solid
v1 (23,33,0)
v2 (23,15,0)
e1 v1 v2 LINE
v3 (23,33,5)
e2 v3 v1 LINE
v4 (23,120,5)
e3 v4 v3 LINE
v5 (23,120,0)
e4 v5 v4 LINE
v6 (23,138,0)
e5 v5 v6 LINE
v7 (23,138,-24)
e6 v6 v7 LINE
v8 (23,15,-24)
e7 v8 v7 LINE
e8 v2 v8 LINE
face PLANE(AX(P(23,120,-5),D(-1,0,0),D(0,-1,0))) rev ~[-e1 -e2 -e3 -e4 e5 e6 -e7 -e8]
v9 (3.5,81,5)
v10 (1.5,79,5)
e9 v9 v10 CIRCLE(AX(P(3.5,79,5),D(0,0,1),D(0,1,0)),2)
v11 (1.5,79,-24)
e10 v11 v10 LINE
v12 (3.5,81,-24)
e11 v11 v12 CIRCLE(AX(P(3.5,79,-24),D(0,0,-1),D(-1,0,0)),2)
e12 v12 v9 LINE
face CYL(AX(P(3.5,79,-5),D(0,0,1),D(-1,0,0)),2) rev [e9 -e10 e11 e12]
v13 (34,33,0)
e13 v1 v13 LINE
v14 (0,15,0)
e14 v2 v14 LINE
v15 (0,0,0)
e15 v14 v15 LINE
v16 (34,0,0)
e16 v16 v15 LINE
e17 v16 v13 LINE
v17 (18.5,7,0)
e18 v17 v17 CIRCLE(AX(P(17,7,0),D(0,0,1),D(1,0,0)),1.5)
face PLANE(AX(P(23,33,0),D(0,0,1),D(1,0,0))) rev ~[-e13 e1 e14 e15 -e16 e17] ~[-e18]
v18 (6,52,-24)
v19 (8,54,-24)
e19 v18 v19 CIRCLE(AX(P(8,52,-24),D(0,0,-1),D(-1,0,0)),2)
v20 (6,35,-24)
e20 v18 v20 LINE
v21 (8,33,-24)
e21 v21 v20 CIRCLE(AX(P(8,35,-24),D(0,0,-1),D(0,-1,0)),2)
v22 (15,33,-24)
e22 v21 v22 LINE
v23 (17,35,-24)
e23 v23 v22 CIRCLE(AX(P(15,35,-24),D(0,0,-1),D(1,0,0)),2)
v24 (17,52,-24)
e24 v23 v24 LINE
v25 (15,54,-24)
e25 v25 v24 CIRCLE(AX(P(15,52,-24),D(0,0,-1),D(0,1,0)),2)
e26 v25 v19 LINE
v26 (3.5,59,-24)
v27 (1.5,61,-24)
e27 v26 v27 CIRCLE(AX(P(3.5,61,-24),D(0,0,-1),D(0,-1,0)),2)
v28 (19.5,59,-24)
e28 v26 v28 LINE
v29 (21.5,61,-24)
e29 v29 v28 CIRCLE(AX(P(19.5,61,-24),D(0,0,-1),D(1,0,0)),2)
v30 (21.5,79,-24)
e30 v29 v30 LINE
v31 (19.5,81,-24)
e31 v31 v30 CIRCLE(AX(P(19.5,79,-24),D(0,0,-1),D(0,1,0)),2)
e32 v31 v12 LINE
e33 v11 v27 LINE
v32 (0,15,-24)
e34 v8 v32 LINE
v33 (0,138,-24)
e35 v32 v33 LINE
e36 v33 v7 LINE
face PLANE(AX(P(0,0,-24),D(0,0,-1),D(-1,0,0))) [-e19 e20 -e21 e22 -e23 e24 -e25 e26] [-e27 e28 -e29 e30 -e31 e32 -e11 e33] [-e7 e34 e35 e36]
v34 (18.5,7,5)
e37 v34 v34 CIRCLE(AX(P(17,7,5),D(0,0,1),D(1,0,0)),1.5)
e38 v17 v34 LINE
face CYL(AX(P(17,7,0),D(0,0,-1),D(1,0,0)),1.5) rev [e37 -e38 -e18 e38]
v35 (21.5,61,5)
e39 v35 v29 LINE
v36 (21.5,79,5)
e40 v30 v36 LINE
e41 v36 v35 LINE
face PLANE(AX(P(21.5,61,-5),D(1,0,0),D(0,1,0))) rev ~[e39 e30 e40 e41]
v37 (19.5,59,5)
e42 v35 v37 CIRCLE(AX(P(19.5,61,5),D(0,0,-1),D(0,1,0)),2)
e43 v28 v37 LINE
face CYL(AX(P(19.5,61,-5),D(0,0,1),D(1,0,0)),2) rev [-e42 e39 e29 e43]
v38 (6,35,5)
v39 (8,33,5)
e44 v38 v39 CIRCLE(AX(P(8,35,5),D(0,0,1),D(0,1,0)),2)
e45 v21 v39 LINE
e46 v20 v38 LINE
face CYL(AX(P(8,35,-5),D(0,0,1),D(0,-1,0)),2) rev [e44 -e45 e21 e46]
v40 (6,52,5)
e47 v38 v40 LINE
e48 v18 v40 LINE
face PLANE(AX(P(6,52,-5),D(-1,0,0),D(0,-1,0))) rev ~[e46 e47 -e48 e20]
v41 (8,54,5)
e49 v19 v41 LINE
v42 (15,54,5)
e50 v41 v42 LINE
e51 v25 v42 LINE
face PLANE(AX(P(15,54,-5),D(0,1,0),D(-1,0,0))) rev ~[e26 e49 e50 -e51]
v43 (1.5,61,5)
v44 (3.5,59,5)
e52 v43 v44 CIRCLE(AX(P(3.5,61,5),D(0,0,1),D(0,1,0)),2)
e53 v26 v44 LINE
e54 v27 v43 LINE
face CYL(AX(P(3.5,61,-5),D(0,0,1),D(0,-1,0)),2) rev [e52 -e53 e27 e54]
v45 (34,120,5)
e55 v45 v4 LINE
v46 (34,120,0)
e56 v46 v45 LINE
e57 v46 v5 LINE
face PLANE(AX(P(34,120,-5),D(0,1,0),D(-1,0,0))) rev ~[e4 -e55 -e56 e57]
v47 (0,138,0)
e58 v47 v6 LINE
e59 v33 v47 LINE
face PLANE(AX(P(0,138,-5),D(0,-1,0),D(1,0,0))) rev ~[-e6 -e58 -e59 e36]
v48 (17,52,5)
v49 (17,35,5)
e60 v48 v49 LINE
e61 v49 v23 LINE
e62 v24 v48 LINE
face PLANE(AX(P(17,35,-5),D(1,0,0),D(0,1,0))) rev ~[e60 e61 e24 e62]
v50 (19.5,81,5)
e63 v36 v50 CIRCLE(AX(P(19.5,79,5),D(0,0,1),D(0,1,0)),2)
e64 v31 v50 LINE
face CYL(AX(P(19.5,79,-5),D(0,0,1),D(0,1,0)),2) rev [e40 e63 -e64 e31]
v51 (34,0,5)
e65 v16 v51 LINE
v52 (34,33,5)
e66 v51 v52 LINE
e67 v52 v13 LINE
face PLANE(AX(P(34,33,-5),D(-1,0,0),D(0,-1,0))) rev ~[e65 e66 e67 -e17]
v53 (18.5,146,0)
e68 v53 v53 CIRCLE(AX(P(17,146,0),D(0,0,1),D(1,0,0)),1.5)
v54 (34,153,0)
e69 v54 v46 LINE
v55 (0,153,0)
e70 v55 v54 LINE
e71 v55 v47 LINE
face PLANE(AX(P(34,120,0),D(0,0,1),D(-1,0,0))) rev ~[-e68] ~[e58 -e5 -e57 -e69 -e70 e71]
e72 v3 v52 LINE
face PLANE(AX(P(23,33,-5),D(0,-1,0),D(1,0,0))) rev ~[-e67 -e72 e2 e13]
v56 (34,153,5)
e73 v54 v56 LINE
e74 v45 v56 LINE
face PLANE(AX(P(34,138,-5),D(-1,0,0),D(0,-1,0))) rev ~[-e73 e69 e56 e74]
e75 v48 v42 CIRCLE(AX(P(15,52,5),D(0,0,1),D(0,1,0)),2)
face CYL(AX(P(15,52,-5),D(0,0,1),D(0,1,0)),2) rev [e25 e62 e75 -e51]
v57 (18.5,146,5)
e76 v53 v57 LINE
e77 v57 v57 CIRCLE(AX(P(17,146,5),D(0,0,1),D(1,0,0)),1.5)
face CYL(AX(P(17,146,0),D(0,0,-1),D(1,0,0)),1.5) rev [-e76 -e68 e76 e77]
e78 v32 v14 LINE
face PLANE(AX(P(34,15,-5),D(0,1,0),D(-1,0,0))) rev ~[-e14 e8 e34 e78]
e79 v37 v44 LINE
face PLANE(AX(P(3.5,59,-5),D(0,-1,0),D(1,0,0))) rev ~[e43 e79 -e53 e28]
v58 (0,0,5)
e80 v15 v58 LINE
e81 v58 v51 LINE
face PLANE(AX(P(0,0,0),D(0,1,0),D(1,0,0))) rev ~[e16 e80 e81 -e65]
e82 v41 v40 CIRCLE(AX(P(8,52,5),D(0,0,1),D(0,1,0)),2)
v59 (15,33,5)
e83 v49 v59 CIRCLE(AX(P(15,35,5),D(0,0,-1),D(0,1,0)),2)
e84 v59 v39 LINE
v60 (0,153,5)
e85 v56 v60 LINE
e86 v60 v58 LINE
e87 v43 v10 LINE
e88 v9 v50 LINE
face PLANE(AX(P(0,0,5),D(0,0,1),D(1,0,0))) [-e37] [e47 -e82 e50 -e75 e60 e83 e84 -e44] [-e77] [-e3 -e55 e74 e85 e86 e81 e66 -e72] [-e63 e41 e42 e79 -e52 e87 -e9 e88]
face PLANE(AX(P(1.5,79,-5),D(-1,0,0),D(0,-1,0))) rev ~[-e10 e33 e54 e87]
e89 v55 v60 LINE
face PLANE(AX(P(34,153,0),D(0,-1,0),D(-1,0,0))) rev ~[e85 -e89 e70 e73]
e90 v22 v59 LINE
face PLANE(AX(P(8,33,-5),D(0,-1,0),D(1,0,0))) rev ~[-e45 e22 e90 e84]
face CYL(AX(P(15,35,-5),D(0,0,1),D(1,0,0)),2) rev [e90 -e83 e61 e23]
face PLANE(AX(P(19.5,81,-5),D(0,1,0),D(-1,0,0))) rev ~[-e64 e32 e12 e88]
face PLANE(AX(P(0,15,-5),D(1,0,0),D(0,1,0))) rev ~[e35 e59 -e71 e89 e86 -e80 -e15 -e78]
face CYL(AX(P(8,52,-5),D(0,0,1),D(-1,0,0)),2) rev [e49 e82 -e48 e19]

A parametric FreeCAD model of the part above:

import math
import FreeCAD as App
import Part
import Sketcher
Q = App.Units.Quantity


def edges_at(feature, points):
    """Names of the edges that pass closest to the given points."""
    edges = feature.Shape.Edges
    near = lambda p: min(range(len(edges)), key=lambda i: edges[i].distToShape(Part.Vertex(*p))[0])
    return sorted({f"Edge{near(p) + 1}" for p in points})


def add_polygon(sketch, points):
    """Adds a closed chain of lines whose ends are joined by coincident constraints."""
    first, n = sketch.GeometryCount, len(points)
    for a, b in zip(points, points[1:] + points[:1]):
        sketch.addGeometry(Part.LineSegment(App.Vector(*a, 0), App.Vector(*b, 0)), False)
    for i in range(n):
        sketch.addConstraint(Sketcher.Constraint("Coincident", first + i, 2, first + (i + 1) % n, 1))

doc = App.newDocument("Part")
params = doc.addObject("Spreadsheet::Sheet", "Params")
for row, (alias, value) in enumerate([
    ("sketch1_diameter", "3 mm"),
    ("sketch1_width", "34 mm"),
    ("sketch1_height", "153 mm"),
    ("pad1_length", "5 mm"),
    ("sketch2_height", "123 mm"),
    ("sketch2_width", "34 mm"),
    ("pad2_length", "5 mm"),
    ("sketch3_width", "11 mm"),
    ("sketch3_height", "87 mm"),
    ("sketch4_width", "11 mm"),
    ("sketch4_height", "21 mm"),
    ("fillet_radius", "2 mm"),
    ("sketch5_width", "20 mm"),
    ("sketch5_height", "22 mm"),
    ("fillet2_radius", "2 mm"),
    ("sketch6_radius", "2 mm"),
    ("sketch6_width", "11 mm"),
    ("sketch6_width2", "34 mm"),
    ("sketch6_width3", "7 mm"),
    ("sketch6_width4", "16 mm"),
    ("pad3_length", "19 mm"),
    ("sketch7_width", "11 mm"),
    ("sketch7_height", "24 mm"),
    ("sketch8_width", "11 mm"),
    ("sketch8_height", "24 mm"),
], start=1):
    params.set(f"A{row}", alias)
    params.set(f"B{row}", "=" + value)
    params.setAlias(f"B{row}", alias)

body = doc.addObject("PartDesign::Body", "Body")

# Sketch on XY plane
sketch1 = doc.addObject("Sketcher::SketchObject", "Sketch")
body.addObject(sketch1)
sketch1.AttachmentSupport = (doc.XY_Plane, [""])
sketch1.MapMode = "FlatFace"
add_polygon(sketch1, [(0, 153), (0, 0), (34, 0), (34, 153)])  # lines 0-3
sketch1.addGeometry(Part.Circle(App.Vector(17, 7, 0), App.Vector(0, 0, 1), 1.5), False)  # 4
sketch1.addGeometry(Part.Circle(App.Vector(17, 146, 0), App.Vector(0, 0, 1), 1.5), False)  # 5
sketch1.addConstraint([
    Sketcher.Constraint("Vertical", 0),
    Sketcher.Constraint("Horizontal", 1),
    Sketcher.Constraint("Vertical", 2),
    Sketcher.Constraint("Horizontal", 3),
    Sketcher.Constraint("Coincident", 0, 2, -1, 1),
    Sketcher.Constraint("Equal", 4, 5),
    Sketcher.Constraint("Vertical", 4, 3, 5, 3),
    Sketcher.Constraint("Diameter", 4, Q("3 mm")),
    Sketcher.Constraint("DistanceX", 1, 1, 1, 2, Q("34 mm")),
    Sketcher.Constraint("DistanceY", 0, 2, 0, 1, Q("153 mm")),
    Sketcher.Constraint("DistanceY", -1, 1, 4, 3, Q("7 mm")),
    Sketcher.Constraint("DistanceY", 5, 3, 2, 2, Q("7 mm")),
    Sketcher.Constraint("DistanceX", -1, 1, 4, 3, Q("17 mm")),
])
sketch1.setExpression("Constraints[11]", "Params.sketch1_diameter")
sketch1.setExpression("Constraints[12]", "Params.sketch1_width")
sketch1.setExpression("Constraints[13]", "Params.sketch1_height")
pad1 = doc.addObject("PartDesign::Pad", "Pad")
body.addObject(pad1)
pad1.Profile = sketch1
pad1.setExpression("Length", "Params.pad1_length")

# Sketch on XY plane
sketch2 = doc.addObject("Sketcher::SketchObject", "Sketch001")
body.addObject(sketch2)
sketch2.AttachmentSupport = (doc.XY_Plane, [""])
sketch2.MapMode = "FlatFace"
add_polygon(sketch2, [(0, 15), (0, 138), (34, 138), (34, 15)])  # lines 0-3
sketch2.addConstraint([
    Sketcher.Constraint("Vertical", 0),
    Sketcher.Constraint("Horizontal", 1),
    Sketcher.Constraint("Vertical", 2),
    Sketcher.Constraint("Horizontal", 3),
    Sketcher.Constraint("PointOnObject", 0, 2, -2),
    Sketcher.Constraint("DistanceY", 0, 1, 0, 2, Q("123 mm")),
    Sketcher.Constraint("DistanceX", 1, 1, 1, 2, Q("34 mm")),
    Sketcher.Constraint("DistanceY", -1, 1, 0, 2, Q("138 mm")),
])
sketch2.setExpression("Constraints[9]", "Params.sketch2_height")
sketch2.setExpression("Constraints[10]", "Params.sketch2_width")
pad2 = doc.addObject("PartDesign::Pad", "Pad001")
body.addObject(pad2)
pad2.Profile = sketch2
pad2.setExpression("Length", "Params.pad2_length")
pad2.Reversed = True

# Sketch on XY plane
sketch3 = doc.addObject("Sketcher::SketchObject", "Sketch002")
body.addObject(sketch3)
sketch3.AttachmentSupport = (doc.XY_Plane, [""])
sketch3.MapMode = "FlatFace"
sketch3.AttachmentOffset = App.Placement(App.Vector(0, 0, 5), App.Rotation())
add_polygon(sketch3, [(23, 120), (23, 33), (34, 33), (34, 120)])  # lines 0-3
sketch3.addConstraint([
    Sketcher.Constraint("Vertical", 0),
    Sketcher.Constraint("Horizontal", 1),
    Sketcher.Constraint("Vertical", 2),
    Sketcher.Constraint("Horizontal", 3),
    Sketcher.Constraint("DistanceX", 1, 1, 1, 2, Q("11 mm")),
    Sketcher.Constraint("DistanceY", 0, 2, 0, 1, Q("87 mm")),
    Sketcher.Constraint("DistanceX", -1, 1, 0, 2, Q("23 mm")),
    Sketcher.Constraint("DistanceY", -1, 1, 0, 2, Q("33 mm")),
])
sketch3.setExpression("Constraints[8]", "Params.sketch3_width")
sketch3.setExpression("Constraints[9]", "Params.sketch3_height")
pocket1 = doc.addObject("PartDesign::Pocket", "Pocket")
body.addObject(pocket1)
pocket1.Profile = sketch3
pocket1.Type = "ThroughAll"

# Sketch on XY plane
sketch4 = doc.addObject("Sketcher::SketchObject", "Sketch003")
body.addObject(sketch4)
sketch4.AttachmentSupport = (doc.XY_Plane, [""])
sketch4.MapMode = "FlatFace"
sketch4.AttachmentOffset = App.Placement(App.Vector(0, 0, 5), App.Rotation())
add_polygon(sketch4, [(6, 33), (17, 33), (17, 54), (6, 54)])  # lines 0-3
sketch4.addConstraint([
    Sketcher.Constraint("Horizontal", 0),
    Sketcher.Constraint("Vertical", 1),
    Sketcher.Constraint("Horizontal", 2),
    Sketcher.Constraint("Vertical", 3),
    Sketcher.Constraint("DistanceX", 0, 1, 0, 2, Q("11 mm")),
    Sketcher.Constraint("DistanceY", 1, 1, 1, 2, Q("21 mm")),
    Sketcher.Constraint("DistanceX", -1, 1, 0, 2, Q("17 mm")),
    Sketcher.Constraint("DistanceY", -1, 1, 0, 2, Q("33 mm")),
])
sketch4.setExpression("Constraints[8]", "Params.sketch4_width")
sketch4.setExpression("Constraints[9]", "Params.sketch4_height")
pocket2 = doc.addObject("PartDesign::Pocket", "Pocket001")
body.addObject(pocket2)
pocket2.Profile = sketch4
pocket2.Type = "ThroughAll"
doc.recompute()

fillet = doc.addObject("PartDesign::Fillet", "Fillet")
body.addObject(fillet)
fillet.Base = (pocket2, edges_at(pocket2, [
    (6, 54, 0),
    (17, 54, 0),
    (17, 33, 0),
    (6, 33, 0),
]))
fillet.setExpression("Radius", "Params.fillet_radius")

# Sketch on XY plane
sketch5 = doc.addObject("Sketcher::SketchObject", "Sketch004")
body.addObject(sketch5)
sketch5.AttachmentSupport = (doc.XY_Plane, [""])
sketch5.MapMode = "FlatFace"
sketch5.AttachmentOffset = App.Placement(App.Vector(0, 0, 5), App.Rotation())
add_polygon(sketch5, [(2, 59), (22, 59), (22, 81), (2, 81)])  # lines 0-3
sketch5.addConstraint([
    Sketcher.Constraint("Horizontal", 0),
    Sketcher.Constraint("Vertical", 1),
    Sketcher.Constraint("Horizontal", 2),
    Sketcher.Constraint("Vertical", 3),
    Sketcher.Constraint("DistanceX", 0, 1, 0, 2, Q("20 mm")),
    Sketcher.Constraint("DistanceY", 1, 1, 1, 2, Q("22 mm")),
    Sketcher.Constraint("DistanceY", -1, 1, 0, 2, Q("59 mm")),
    Sketcher.Constraint("DistanceX", -1, 1, 0, 2, Q("21.5 mm")),
])
sketch5.setExpression("Constraints[8]", "Params.sketch5_width")
sketch5.setExpression("Constraints[9]", "Params.sketch5_height")
pocket3 = doc.addObject("PartDesign::Pocket", "Pocket002")
body.addObject(pocket3)
pocket3.Profile = sketch5
pocket3.Type = "ThroughAll"
doc.recompute()

fillet2 = doc.addObject("PartDesign::Fillet", "Fillet001")
body.addObject(fillet2)
fillet2.Base = (pocket3, edges_at(pocket3, [
    (21.5, 81, 0),
    (1.5, 81, 0),
    (1.5, 59, 0),
    (21.5, 59, 0),
]))
fillet2.setExpression("Radius", "Params.fillet2_radius")

# Sketch on XY plane
sketch6 = doc.addObject("Sketcher::SketchObject", "Sketch005")
body.addObject(sketch6)
sketch6.AttachmentSupport = (doc.XY_Plane, [""])
sketch6.MapMode = "FlatFace"
sketch6.AttachmentOffset = App.Placement(App.Vector(0, 0, -5), App.Rotation())
add_polygon(sketch6, [(23, 120), (23, 33), (34, 33), (34, 15), (0, 15), (0, 138), (34, 138), (34, 120)])  # lines 0-7
sketch6.addGeometry(Part.ArcOfCircle(Part.Circle(App.Vector(15, 35, 0), App.Vector(0, 0, 1), 2), math.radians(-90), math.radians(0)), False)  # 8
sketch6.addGeometry(Part.LineSegment(App.Vector(17, 35, 0), App.Vector(17, 52, 0)), False)  # 9
sketch6.addGeometry(Part.ArcOfCircle(Part.Circle(App.Vector(15, 52, 0), App.Vector(0, 0, 1), 2), math.radians(0), math.radians(90)), False)  # 10
sketch6.addGeometry(Part.LineSegment(App.Vector(15, 54, 0), App.Vector(8, 54, 0)), False)  # 11
sketch6.addGeometry(Part.ArcOfCircle(Part.Circle(App.Vector(8, 52, 0), App.Vector(0, 0, 1), 2), math.radians(90), math.radians(180)), False)  # 12
sketch6.addGeometry(Part.LineSegment(App.Vector(6, 52, 0), App.Vector(6, 35, 0)), False)  # 13
sketch6.addGeometry(Part.ArcOfCircle(Part.Circle(App.Vector(8, 35, 0), App.Vector(0, 0, 1), 2), math.radians(180), math.radians(270)), False)  # 14
sketch6.addGeometry(Part.LineSegment(App.Vector(8, 33, 0), App.Vector(15, 33, 0)), False)  # 15
sketch6.addGeometry(Part.ArcOfCircle(Part.Circle(App.Vector(19.5, 61, 0), App.Vector(0, 0, 1), 2), math.radians(-90), math.radians(0)), False)  # 16
sketch6.addGeometry(Part.LineSegment(App.Vector(21.5, 61, 0), App.Vector(21.5, 79, 0)), False)  # 17
sketch6.addGeometry(Part.ArcOfCircle(Part.Circle(App.Vector(19.5, 79, 0), App.Vector(0, 0, 1), 2), math.radians(0), math.radians(90)), False)  # 18
sketch6.addGeometry(Part.LineSegment(App.Vector(19.5, 81, 0), App.Vector(3.5, 81, 0)), False)  # 19
sketch6.addGeometry(Part.ArcOfCircle(Part.Circle(App.Vector(3.5, 79, 0), App.Vector(0, 0, 1), 2), math.radians(90), math.radians(180)), False)  # 20
sketch6.addGeometry(Part.LineSegment(App.Vector(1.5, 79, 0), App.Vector(1.5, 61, 0)), False)  # 21
sketch6.addGeometry(Part.ArcOfCircle(Part.Circle(App.Vector(3.5, 61, 0), App.Vector(0, 0, 1), 2), math.radians(180), math.radians(270)), False)  # 22
sketch6.addGeometry(Part.LineSegment(App.Vector(3.5, 59, 0), App.Vector(19.5, 59, 0)), False)  # 23
sketch6.addConstraint([
    Sketcher.Constraint("Tangent", 8, 2, 9, 1),
    Sketcher.Constraint("Tangent", 9, 2, 10, 1),
    Sketcher.Constraint("Tangent", 10, 2, 11, 1),
    Sketcher.Constraint("Tangent", 11, 2, 12, 1),
    Sketcher.Constraint("Tangent", 12, 2, 13, 1),
    Sketcher.Constraint("Tangent", 13, 2, 14, 1),
    Sketcher.Constraint("Tangent", 14, 2, 15, 1),
    Sketcher.Constraint("Tangent", 15, 2, 8, 1),
    Sketcher.Constraint("Tangent", 16, 2, 17, 1),
    Sketcher.Constraint("Tangent", 17, 2, 18, 1),
    Sketcher.Constraint("Tangent", 18, 2, 19, 1),
    Sketcher.Constraint("Tangent", 19, 2, 20, 1),
    Sketcher.Constraint("Tangent", 20, 2, 21, 1),
    Sketcher.Constraint("Tangent", 21, 2, 22, 1),
    Sketcher.Constraint("Tangent", 22, 2, 23, 1),
    Sketcher.Constraint("Tangent", 23, 2, 16, 1),
    Sketcher.Constraint("Vertical", 0),
    Sketcher.Constraint("Horizontal", 1),
    Sketcher.Constraint("Vertical", 2),
    Sketcher.Constraint("Horizontal", 3),
    Sketcher.Constraint("Vertical", 4),
    Sketcher.Constraint("Horizontal", 5),
    Sketcher.Constraint("Vertical", 6),
    Sketcher.Constraint("Horizontal", 7),
    Sketcher.Constraint("Vertical", 9),
    Sketcher.Constraint("Horizontal", 11),
    Sketcher.Constraint("Vertical", 13),
    Sketcher.Constraint("Horizontal", 15),
    Sketcher.Constraint("Vertical", 17),
    Sketcher.Constraint("Horizontal", 19),
    Sketcher.Constraint("Vertical", 21),
    Sketcher.Constraint("Horizontal", 23),
    Sketcher.Constraint("Equal", 8, 10),
    Sketcher.Constraint("Equal", 10, 12),
    Sketcher.Constraint("Equal", 12, 14),
    Sketcher.Constraint("Equal", 14, 16),
    Sketcher.Constraint("Equal", 16, 18),
    Sketcher.Constraint("Equal", 18, 20),
    Sketcher.Constraint("Equal", 20, 22),
    Sketcher.Constraint("PointOnObject", 3, 2, -2),
    Sketcher.Constraint("Horizontal", 1, 2, 14, 2),
    Sketcher.Constraint("Vertical", 2, 2, 5, 2),
    Sketcher.Constraint("Equal", 2, 6),
    Sketcher.Constraint("Equal", 6, 17),
    Sketcher.Constraint("Radius", 8, Q("2 mm")),
    Sketcher.Constraint("DistanceX", 1, 1, 1, 2, Q("11 mm")),
    Sketcher.Constraint("DistanceX", 3, 2, 3, 1, Q("34 mm")),
    Sketcher.Constraint("DistanceX", 11, 2, 11, 1, Q("7 mm")),
    Sketcher.Constraint("DistanceX", 19, 2, 19, 1, Q("16 mm")),
    Sketcher.Constraint("DistanceY", 0, 2, 0, 1, Q("87 mm")),
    Sketcher.Constraint("DistanceY", 2, 2, 2, 1, Q("18 mm")),
    Sketcher.Constraint("DistanceY", 9, 1, 9, 2, Q("17 mm")),
    Sketcher.Constraint("DistanceX", -1, 1, 8, 3, Q("15 mm")),
    Sketcher.Constraint("DistanceY", -1, 1, 8, 3, Q("35 mm")),
    Sketcher.Constraint("DistanceY", -1, 1, 16, 3, Q("61 mm")),
    Sketcher.Constraint("DistanceX", -1, 1, 16, 3, Q("19.5 mm")),
])
sketch6.setExpression("Constraints[52]", "Params.sketch6_radius")
sketch6.setExpression("Constraints[53]", "Params.sketch6_width")
sketch6.setExpression("Constraints[54]", "Params.sketch6_width2")
sketch6.setExpression("Constraints[55]", "Params.sketch6_width3")
sketch6.setExpression("Constraints[56]", "Params.sketch6_width4")
pad3 = doc.addObject("PartDesign::Pad", "Pad002")
body.addObject(pad3)
pad3.Profile = sketch6
pad3.setExpression("Length", "Params.pad3_length")
pad3.Reversed = True

# Sketch on XZ plane
sketch7 = doc.addObject("Sketcher::SketchObject", "Sketch006")
body.addObject(sketch7)
sketch7.AttachmentSupport = (doc.XZ_Plane, [""])
sketch7.MapMode = "FlatFace"
sketch7.AttachmentOffset = App.Placement(App.Vector(0, 0, -33), App.Rotation())
add_polygon(sketch7, [(23, -24), (23, 0), (34, 0), (34, -24)])  # lines 0-3
sketch7.addConstraint([
    Sketcher.Constraint("Vertical", 0),
    Sketcher.Constraint("Horizontal", 1),
    Sketcher.Constraint("Vertical", 2),
    Sketcher.Constraint("Horizontal", 3),
    Sketcher.Constraint("PointOnObject", 0, 2, -1),
    Sketcher.Constraint("DistanceX", 1, 1, 1, 2, Q("11 mm")),
    Sketcher.Constraint("DistanceY", 0, 1, 0, 2, Q("24 mm")),
    Sketcher.Constraint("DistanceX", -1, 1, 0, 2, Q("23 mm")),
])
sketch7.setExpression("Constraints[9]", "Params.sketch7_width")
sketch7.setExpression("Constraints[10]", "Params.sketch7_height")
pocket4 = doc.addObject("PartDesign::Pocket", "Pocket003")
body.addObject(pocket4)
pocket4.Profile = sketch7
pocket4.Type = "ThroughAll"
pocket4.Reversed = True

# Sketch on XZ plane
sketch8 = doc.addObject("Sketcher::SketchObject", "Sketch007")
body.addObject(sketch8)
sketch8.AttachmentSupport = (doc.XZ_Plane, [""])
sketch8.MapMode = "FlatFace"
sketch8.AttachmentOffset = App.Placement(App.Vector(0, 0, -120), App.Rotation())
add_polygon(sketch8, [(34, -24), (34, 0), (23, 0), (23, -24)])  # lines 0-3
sketch8.addConstraint([
    Sketcher.Constraint("Vertical", 0),
    Sketcher.Constraint("Horizontal", 1),
    Sketcher.Constraint("Vertical", 2),
    Sketcher.Constraint("Horizontal", 3),
    Sketcher.Constraint("PointOnObject", 0, 2, -1),
    Sketcher.Constraint("DistanceX", 1, 2, 1, 1, Q("11 mm")),
    Sketcher.Constraint("DistanceY", 0, 1, 0, 2, Q("24 mm")),
    Sketcher.Constraint("DistanceX", -1, 1, 0, 2, Q("34 mm")),
])
sketch8.setExpression("Constraints[9]", "Params.sketch8_width")
sketch8.setExpression("Constraints[10]", "Params.sketch8_height")
pocket5 = doc.addObject("PartDesign::Pocket", "Pocket004")
body.addObject(pocket5)
pocket5.Profile = sketch8
pocket5.Type = "ThroughAll"

doc.recompute()
